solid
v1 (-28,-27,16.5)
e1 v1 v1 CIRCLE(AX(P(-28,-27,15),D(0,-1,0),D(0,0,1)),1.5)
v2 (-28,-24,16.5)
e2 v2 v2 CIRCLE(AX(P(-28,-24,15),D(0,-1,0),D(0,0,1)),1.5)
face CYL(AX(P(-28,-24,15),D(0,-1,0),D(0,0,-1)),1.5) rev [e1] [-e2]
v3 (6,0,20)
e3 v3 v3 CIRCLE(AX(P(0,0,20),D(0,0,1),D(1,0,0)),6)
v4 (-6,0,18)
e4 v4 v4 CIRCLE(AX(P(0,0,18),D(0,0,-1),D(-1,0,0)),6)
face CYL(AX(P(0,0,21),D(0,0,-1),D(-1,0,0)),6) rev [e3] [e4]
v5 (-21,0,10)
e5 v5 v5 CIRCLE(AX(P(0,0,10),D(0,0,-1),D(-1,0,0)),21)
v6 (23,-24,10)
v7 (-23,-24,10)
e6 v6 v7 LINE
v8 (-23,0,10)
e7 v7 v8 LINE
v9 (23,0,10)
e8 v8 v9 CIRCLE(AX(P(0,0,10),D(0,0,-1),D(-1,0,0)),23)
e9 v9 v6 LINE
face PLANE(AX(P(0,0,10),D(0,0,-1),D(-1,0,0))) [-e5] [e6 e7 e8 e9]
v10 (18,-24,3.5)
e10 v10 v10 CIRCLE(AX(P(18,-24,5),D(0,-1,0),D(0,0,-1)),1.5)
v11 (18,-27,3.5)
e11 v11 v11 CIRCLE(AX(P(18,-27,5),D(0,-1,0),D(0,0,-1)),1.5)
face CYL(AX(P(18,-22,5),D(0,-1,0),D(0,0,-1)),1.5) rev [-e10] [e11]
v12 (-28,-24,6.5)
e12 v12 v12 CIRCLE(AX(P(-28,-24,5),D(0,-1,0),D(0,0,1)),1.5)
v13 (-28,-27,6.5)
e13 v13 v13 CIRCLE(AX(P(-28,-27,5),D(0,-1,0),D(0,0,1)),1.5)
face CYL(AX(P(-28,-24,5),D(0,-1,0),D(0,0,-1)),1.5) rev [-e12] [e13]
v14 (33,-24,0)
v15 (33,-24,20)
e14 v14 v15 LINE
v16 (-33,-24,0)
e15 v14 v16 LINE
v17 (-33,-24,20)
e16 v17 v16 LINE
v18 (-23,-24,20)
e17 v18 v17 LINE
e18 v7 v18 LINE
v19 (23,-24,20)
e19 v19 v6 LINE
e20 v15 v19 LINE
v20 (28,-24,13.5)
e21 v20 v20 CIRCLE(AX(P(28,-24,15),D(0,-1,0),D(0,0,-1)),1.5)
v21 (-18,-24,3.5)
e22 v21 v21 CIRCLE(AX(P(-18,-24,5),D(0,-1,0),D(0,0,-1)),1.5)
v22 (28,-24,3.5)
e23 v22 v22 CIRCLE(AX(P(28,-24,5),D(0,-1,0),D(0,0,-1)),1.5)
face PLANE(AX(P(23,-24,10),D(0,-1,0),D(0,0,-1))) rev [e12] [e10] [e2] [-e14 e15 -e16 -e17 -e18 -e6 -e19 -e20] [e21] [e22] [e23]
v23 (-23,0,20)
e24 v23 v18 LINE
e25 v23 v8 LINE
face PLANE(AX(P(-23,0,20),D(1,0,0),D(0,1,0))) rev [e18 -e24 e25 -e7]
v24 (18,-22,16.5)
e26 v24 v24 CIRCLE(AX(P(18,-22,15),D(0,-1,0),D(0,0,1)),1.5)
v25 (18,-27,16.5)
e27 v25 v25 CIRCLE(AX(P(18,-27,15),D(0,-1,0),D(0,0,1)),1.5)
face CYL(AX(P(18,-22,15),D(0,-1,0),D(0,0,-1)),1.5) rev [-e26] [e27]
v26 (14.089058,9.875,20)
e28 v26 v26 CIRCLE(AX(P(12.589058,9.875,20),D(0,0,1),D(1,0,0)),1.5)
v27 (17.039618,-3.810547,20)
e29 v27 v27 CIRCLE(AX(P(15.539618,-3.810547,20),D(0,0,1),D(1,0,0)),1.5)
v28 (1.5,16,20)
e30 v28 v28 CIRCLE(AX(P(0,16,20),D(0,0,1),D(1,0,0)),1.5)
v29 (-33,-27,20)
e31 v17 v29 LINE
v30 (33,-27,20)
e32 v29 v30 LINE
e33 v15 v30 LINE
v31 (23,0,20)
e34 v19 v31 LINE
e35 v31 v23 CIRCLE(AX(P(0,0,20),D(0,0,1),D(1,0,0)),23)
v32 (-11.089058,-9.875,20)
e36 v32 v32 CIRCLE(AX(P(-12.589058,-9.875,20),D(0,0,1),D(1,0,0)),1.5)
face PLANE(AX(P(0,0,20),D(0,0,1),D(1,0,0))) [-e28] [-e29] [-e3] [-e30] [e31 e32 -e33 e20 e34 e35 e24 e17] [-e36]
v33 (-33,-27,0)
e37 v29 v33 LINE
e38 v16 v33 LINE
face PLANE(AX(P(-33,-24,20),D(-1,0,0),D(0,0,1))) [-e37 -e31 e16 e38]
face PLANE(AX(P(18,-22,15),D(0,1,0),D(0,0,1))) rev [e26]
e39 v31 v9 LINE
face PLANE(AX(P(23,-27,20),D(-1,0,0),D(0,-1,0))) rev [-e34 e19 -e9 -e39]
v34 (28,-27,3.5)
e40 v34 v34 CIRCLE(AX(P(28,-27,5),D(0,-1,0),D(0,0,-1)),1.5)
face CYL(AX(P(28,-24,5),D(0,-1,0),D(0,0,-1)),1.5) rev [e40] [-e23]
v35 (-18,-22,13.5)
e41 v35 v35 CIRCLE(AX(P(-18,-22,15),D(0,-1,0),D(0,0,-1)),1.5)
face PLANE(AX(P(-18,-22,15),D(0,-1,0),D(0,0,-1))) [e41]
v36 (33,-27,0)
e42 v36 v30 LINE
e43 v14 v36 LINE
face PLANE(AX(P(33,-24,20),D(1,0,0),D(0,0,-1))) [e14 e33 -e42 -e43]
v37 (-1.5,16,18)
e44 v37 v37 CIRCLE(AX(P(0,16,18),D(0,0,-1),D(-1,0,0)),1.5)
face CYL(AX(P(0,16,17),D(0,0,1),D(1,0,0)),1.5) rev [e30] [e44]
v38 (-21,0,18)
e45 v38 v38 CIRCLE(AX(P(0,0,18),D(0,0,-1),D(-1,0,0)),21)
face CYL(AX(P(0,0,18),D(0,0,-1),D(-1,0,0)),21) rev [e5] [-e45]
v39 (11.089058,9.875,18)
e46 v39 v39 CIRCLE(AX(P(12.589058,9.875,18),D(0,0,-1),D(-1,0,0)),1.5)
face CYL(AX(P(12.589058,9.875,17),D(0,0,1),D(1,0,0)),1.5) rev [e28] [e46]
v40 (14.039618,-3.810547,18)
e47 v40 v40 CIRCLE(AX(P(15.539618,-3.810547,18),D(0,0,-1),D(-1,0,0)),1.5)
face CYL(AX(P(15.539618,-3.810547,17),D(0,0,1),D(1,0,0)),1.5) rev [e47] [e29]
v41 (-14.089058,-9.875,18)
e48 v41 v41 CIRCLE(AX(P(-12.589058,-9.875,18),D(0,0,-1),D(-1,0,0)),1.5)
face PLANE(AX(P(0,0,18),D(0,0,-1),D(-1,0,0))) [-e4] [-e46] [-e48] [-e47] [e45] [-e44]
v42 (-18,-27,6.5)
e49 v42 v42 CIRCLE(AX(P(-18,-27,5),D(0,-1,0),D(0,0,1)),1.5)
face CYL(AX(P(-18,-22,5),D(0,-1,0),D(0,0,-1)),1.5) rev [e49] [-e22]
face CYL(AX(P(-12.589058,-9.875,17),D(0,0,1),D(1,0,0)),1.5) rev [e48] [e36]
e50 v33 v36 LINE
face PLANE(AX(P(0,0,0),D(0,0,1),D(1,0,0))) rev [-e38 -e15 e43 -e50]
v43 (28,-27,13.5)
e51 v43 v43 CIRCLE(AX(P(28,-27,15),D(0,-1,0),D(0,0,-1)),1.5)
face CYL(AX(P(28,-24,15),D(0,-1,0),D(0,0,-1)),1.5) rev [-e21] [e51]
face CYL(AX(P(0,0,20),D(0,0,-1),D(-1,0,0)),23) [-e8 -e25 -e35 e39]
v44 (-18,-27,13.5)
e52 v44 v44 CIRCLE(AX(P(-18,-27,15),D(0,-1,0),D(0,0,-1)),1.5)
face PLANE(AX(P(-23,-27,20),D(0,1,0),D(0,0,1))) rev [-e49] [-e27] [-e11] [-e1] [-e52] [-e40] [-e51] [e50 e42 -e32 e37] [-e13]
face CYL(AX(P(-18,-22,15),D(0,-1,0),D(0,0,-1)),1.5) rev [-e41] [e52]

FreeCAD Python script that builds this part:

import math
import FreeCAD as App
import Part
import Sketcher

V = App.Vector

doc = App.newDocument("Part")
params = doc.addObject("Spreadsheet::Sheet", "Params")
for row, (alias, value) in enumerate([
    ("sketch1_radius", "23 mm"),
    ("sketch1_height", "27 mm"),
    ("pad1_length", "20 mm"),
    ("sketch2_radius", "23 mm"),
    ("sketch2_height", "24 mm"),
    ("pocket1_length", "10 mm"),
    ("sketch3_diameter", "42 mm"),
    ("pocket2_length", "8 mm"),
    ("sketch4_diameter", "3 mm"),
    ("pocket3_length", "5 mm"),
    ("sketch5_diameter", "3 mm"),
    ("pocket4_length", "3 mm"),
    ("sketch6_diameter", "12 mm"),
    ("pocket5_length", "3 mm"),
    ("sketch7_diameter", "3 mm"),
    ("sketch7_width", "10 mm"),
    ("sketch7_height", "20 mm"),
    ("pad2_length", "3 mm"),
], start=1):
    params.set(f"A{row}", alias)
    params.set(f"B{row}", "=" + value)
    params.setAlias(f"B{row}", alias)

body = doc.addObject("PartDesign::Body", "Body")

# Sketch on XY plane
sketch1 = doc.addObject("Sketcher::SketchObject", "Sketch")
body.addObject(sketch1)
sketch1.AttachmentSupport = (doc.XY_Plane, [""])
sketch1.MapMode = "FlatFace"
sketch1.addGeometry([
    Part.LineSegment(V(-23, 0, 0), V(-23, -27, 0)),
    Part.LineSegment(V(-23, -27, 0), V(23, -27, 0)),
    Part.LineSegment(V(23, -27, 0), V(23, 0, 0)),
    Part.ArcOfCircle(Part.Circle(V(0, 0, 0), V(0, 0, 1), 23), math.radians(0), math.radians(180)),
], False)
sketch1.addConstraint([
    Sketcher.Constraint("Coincident", 0, 2, 1, 1),
    Sketcher.Constraint("Coincident", 1, 2, 2, 1),
    Sketcher.Constraint("Tangent", 2, 2, 3, 1),
    Sketcher.Constraint("Tangent", 3, 2, 0, 1),
    Sketcher.Constraint("Vertical", 0),
    Sketcher.Constraint("Horizontal", 1),
    Sketcher.Constraint("Vertical", 2),
    Sketcher.Constraint("Coincident", 3, 3, -1, 1),
    Sketcher.Constraint("Radius", 3, 23.0),
    Sketcher.Constraint("DistanceY", 0, 2, 0, 1, 27.0),
])
sketch1.setExpression("Constraints[8]", "Params.sketch1_radius")
sketch1.setExpression("Constraints[9]", "Params.sketch1_height")
pad1 = doc.addObject("PartDesign::Pad", "Pad")
body.addObject(pad1)
pad1.Profile = sketch1
pad1.setExpression("Length", "Params.pad1_length")

# Sketch on XY plane
sketch2 = doc.addObject("Sketcher::SketchObject", "Sketch001")
body.addObject(sketch2)
sketch2.AttachmentSupport = (doc.XY_Plane, [""])
sketch2.MapMode = "FlatFace"
sketch2.addGeometry([
    Part.LineSegment(V(23, -24, 0), V(-23, -24, 0)),
    Part.LineSegment(V(-23, -24, 0), V(-23, 0, 0)),
    Part.ArcOfCircle(Part.Circle(V(0, 0, 0), V(0, 0, 1), 23), math.radians(0), math.radians(180)),
    Part.LineSegment(V(23, 0, 0), V(23, -24, 0)),
], False)
sketch2.addConstraint([
    Sketcher.Constraint("Coincident", 0, 2, 1, 1),
    Sketcher.Constraint("Tangent", 1, 2, 2, 2),
    Sketcher.Constraint("Tangent", 2, 1, 3, 1),
    Sketcher.Constraint("Coincident", 3, 2, 0, 1),
    Sketcher.Constraint("Horizontal", 0),
    Sketcher.Constraint("Vertical", 1),
    Sketcher.Constraint("Vertical", 3),
    Sketcher.Constraint("Coincident", 2, 3, -1, 1),
    Sketcher.Constraint("Radius", 2, 23.0),
    Sketcher.Constraint("DistanceY", 1, 1, 1, 2, 24.0),
])
sketch2.setExpression("Constraints[8]", "Params.sketch2_radius")
sketch2.setExpression("Constraints[9]", "Params.sketch2_height")
pocket1 = doc.addObject("PartDesign::Pocket", "Pocket")
body.addObject(pocket1)
pocket1.Profile = sketch2
pocket1.setExpression("Length", "Params.pocket1_length")
pocket1.Reversed = True

# Sketch on XY plane
sketch3 = doc.addObject("Sketcher::SketchObject", "Sketch002")
body.addObject(sketch3)
sketch3.AttachmentSupport = (doc.XY_Plane, [""])
sketch3.MapMode = "FlatFace"
sketch3.AttachmentOffset = App.Placement(V(0, 0, 10), App.Rotation())
sketch3.addGeometry(Part.Circle(V(0, 0, 0), V(0, 0, 1), 21), False)
sketch3.addConstraint([
    Sketcher.Constraint("Coincident", 0, 3, -1, 1),
    Sketcher.Constraint("Diameter", 0, 42.0),
])
sketch3.setExpression("Constraints[1]", "Params.sketch3_diameter")
pocket2 = doc.addObject("PartDesign::Pocket", "Pocket001")
body.addObject(pocket2)
pocket2.Profile = sketch3
pocket2.setExpression("Length", "Params.pocket2_length")
pocket2.Reversed = True

# Sketch on XZ plane
sketch4 = doc.addObject("Sketcher::SketchObject", "Sketch003")
body.addObject(sketch4)
sketch4.AttachmentSupport = (doc.XZ_Plane, [""])
sketch4.MapMode = "FlatFace"
sketch4.AttachmentOffset = App.Placement(V(0, 0, 27), App.Rotation())
sketch4.addGeometry([
    Part.Circle(V(-18, 15, 0), V(0, 0, 1), 1.5),
    Part.Circle(V(18, 15, 0), V(0, 0, 1), 1.5),
    Part.Circle(V(18, 5, 0), V(0, 0, 1), 1.5),
    Part.Circle(V(-18, 5, 0), V(0, 0, 1), 1.5),
], False)
sketch4.addConstraint([
    Sketcher.Constraint("Equal", 0, 1),
    Sketcher.Constraint("Equal", 1, 2),
    Sketcher.Constraint("Equal", 2, 3),
    Sketcher.Constraint("Symmetric", 0, 3, 1, 3, -2),
    Sketcher.Constraint("Symmetric", 2, 3, 3, 3, -2),
    Sketcher.Constraint("Vertical", 1, 3, 2, 3),
    Sketcher.Constraint("Diameter", 0, 3.0),
    Sketcher.Constraint("DistanceX", 0, 3, -1, 1, 18.0),
    Sketcher.Constraint("DistanceY", -1, 1, 0, 3, 15.0),
    Sketcher.Constraint("DistanceY", -1, 1, 2, 3, 5.0),
])
sketch4.setExpression("Constraints[6]", "Params.sketch4_diameter")
pocket3 = doc.addObject("PartDesign::Pocket", "Pocket002")
body.addObject(pocket3)
pocket3.Profile = sketch4
pocket3.setExpression("Length", "Params.pocket3_length")

# Sketch on XY plane
sketch5 = doc.addObject("Sketcher::SketchObject", "Sketch004")
body.addObject(sketch5)
sketch5.AttachmentSupport = (doc.XY_Plane, [""])
sketch5.MapMode = "FlatFace"
sketch5.AttachmentOffset = App.Placement(V(0, 0, 20), App.Rotation())
sketch5.addGeometry([
    Part.Circle(V(0, 16, 0), V(0, 0, 1), 1.5),
    Part.Circle(V(12.6, 9.9, 0), V(0, 0, 1), 1.5),
    Part.Circle(V(-12.6, -9.9, 0), V(0, 0, 1), 1.5),
    Part.Circle(V(15.5, -3.8, 0), V(0, 0, 1), 1.5),
], False)
sketch5.addConstraint([
    Sketcher.Constraint("Equal", 0, 1),
    Sketcher.Constraint("Equal", 1, 2),
    Sketcher.Constraint("Equal", 2, 3),
    Sketcher.Constraint("Symmetric", 1, 3, 2, 3, -1, 1),
    Sketcher.Constraint("PointOnObject", 0, 3, -2),
    Sketcher.Constraint("Diameter", 0, 3.0),
    Sketcher.Constraint("DistanceY", -1, 1, 0, 3, 16.0),
    Sketcher.Constraint("DistanceY", 2, 3, 1, 3, 19.75),
    Sketcher.Constraint("DistanceX", -1, 1, 3, 3, 15.539618),
    Sketcher.Constraint("DistanceX", 1, 3, 3, 3, 2.95056),
    Sketcher.Constraint("DistanceY", 3, 3, -1, 1, 3.810547),
])
sketch5.setExpression("Constraints[5]", "Params.sketch5_diameter")
pocket4 = doc.addObject("PartDesign::Pocket", "Pocket003")
body.addObject(pocket4)
pocket4.Profile = sketch5
pocket4.setExpression("Length", "Params.pocket4_length")

# Sketch on XY plane
sketch6 = doc.addObject("Sketcher::SketchObject", "Sketch005")
body.addObject(sketch6)
sketch6.AttachmentSupport = (doc.XY_Plane, [""])
sketch6.MapMode = "FlatFace"
sketch6.AttachmentOffset = App.Placement(V(0, 0, 18), App.Rotation())
sketch6.addGeometry(Part.Circle(V(0, 0, 0), V(0, 0, 1), 6), False)
sketch6.addConstraint([
    Sketcher.Constraint("Coincident", 0, 3, -1, 1),
    Sketcher.Constraint("Diameter", 0, 12.0),
])
sketch6.setExpression("Constraints[1]", "Params.sketch6_diameter")
pocket5 = doc.addObject("PartDesign::Pocket", "Pocket004")
body.addObject(pocket5)
pocket5.Profile = sketch6
pocket5.setExpression("Length", "Params.pocket5_length")
pocket5.Reversed = True

# Sketch on XZ plane
sketch7 = doc.addObject("Sketcher::SketchObject", "Sketch006")
body.addObject(sketch7)
sketch7.AttachmentSupport = (doc.XZ_Plane, [""])
sketch7.MapMode = "FlatFace"
sketch7.AttachmentOffset = App.Placement(V(0, 0, 27), App.Rotation())
sketch7.addGeometry([
    Part.LineSegment(V(23, 20, 0), V(23, 0, 0)),  # 0
    Part.LineSegment(V(23, 0, 0), V(33, 0, 0)),  # 1
    Part.LineSegment(V(33, 0, 0), V(33, 20, 0)),  # 2
    Part.LineSegment(V(33, 20, 0), V(23, 20, 0)),  # 3
    Part.Circle(V(28, 5, 0), V(0, 0, 1), 1.5),  # 4
    Part.Circle(V(28, 15, 0), V(0, 0, 1), 1.5),  # 5
    Part.LineSegment(V(-33, 20, 0), V(-33, 0, 0)),  # 6
    Part.LineSegment(V(-33, 0, 0), V(-23, 0, 0)),  # 7
    Part.LineSegment(V(-23, 0, 0), V(-23, 20, 0)),  # 8
    Part.LineSegment(V(-23, 20, 0), V(-33, 20, 0)),  # 9
    Part.Circle(V(-28, 5, 0), V(0, 0, 1), 1.5),  # 10
    Part.Circle(V(-28, 15, 0), V(0, 0, 1), 1.5),  # 11
], False)
sketch7.addConstraint([
    Sketcher.Constraint("Coincident", 0, 2, 1, 1),
    Sketcher.Constraint("Coincident", 1, 2, 2, 1),
    Sketcher.Constraint("Coincident", 2, 2, 3, 1),
    Sketcher.Constraint("Coincident", 3, 2, 0, 1),
    Sketcher.Constraint("Coincident", 6, 2, 7, 1),
    Sketcher.Constraint("Coincident", 7, 2, 8, 1),
    Sketcher.Constraint("Coincident", 8, 2, 9, 1),
    Sketcher.Constraint("Coincident", 9, 2, 6, 1),
    Sketcher.Constraint("Vertical", 0),
    Sketcher.Constraint("Horizontal", 1),
    Sketcher.Constraint("Vertical", 2),
    Sketcher.Constraint("Horizontal", 3),
    Sketcher.Constraint("Vertical", 6),
    Sketcher.Constraint("Horizontal", 7),
    Sketcher.Constraint("Vertical", 8),
    Sketcher.Constraint("Horizontal", 9),
    Sketcher.Constraint("Equal", 4, 5),
    Sketcher.Constraint("Equal", 5, 10),
    Sketcher.Constraint("Equal", 10, 11),
    Sketcher.Constraint("Symmetric", 1, 2, 6, 2, -1, 1),
    Sketcher.Constraint("Symmetric", 4, 3, 10, 3, -2),
    Sketcher.Constraint("Symmetric", 5, 3, 11, 3, -2),
    Sketcher.Constraint("Symmetric", 0, 2, 7, 2, -2),
    Sketcher.Constraint("Horizontal", 3, 2, 8, 2),
    Sketcher.Constraint("Vertical", 4, 3, 5, 3),
    Sketcher.Constraint("Diameter", 4, 3.0),
    Sketcher.Constraint("DistanceX", 1, 1, 1, 2, 10.0),
    Sketcher.Constraint("DistanceY", 0, 2, 0, 1, 20.0),
    Sketcher.Constraint("DistanceX", -1, 1, 4, 3, 28.0),
    Sketcher.Constraint("DistanceY", -1, 1, 4, 3, 5.0),
    Sketcher.Constraint("DistanceY", -1, 1, 5, 3, 15.0),
    Sketcher.Constraint("DistanceX", -1, 1, 0, 2, 23.0),
])
sketch7.setExpression("Constraints[25]", "Params.sketch7_diameter")
sketch7.setExpression("Constraints[26]", "Params.sketch7_width")
sketch7.setExpression("Constraints[27]", "Params.sketch7_height")
pad2 = doc.addObject("PartDesign::Pad", "Pad001")
body.addObject(pad2)
pad2.Profile = sketch7
pad2.setExpression("Length", "Params.pad2_length")
pad2.Reversed = True

doc.recompute()
